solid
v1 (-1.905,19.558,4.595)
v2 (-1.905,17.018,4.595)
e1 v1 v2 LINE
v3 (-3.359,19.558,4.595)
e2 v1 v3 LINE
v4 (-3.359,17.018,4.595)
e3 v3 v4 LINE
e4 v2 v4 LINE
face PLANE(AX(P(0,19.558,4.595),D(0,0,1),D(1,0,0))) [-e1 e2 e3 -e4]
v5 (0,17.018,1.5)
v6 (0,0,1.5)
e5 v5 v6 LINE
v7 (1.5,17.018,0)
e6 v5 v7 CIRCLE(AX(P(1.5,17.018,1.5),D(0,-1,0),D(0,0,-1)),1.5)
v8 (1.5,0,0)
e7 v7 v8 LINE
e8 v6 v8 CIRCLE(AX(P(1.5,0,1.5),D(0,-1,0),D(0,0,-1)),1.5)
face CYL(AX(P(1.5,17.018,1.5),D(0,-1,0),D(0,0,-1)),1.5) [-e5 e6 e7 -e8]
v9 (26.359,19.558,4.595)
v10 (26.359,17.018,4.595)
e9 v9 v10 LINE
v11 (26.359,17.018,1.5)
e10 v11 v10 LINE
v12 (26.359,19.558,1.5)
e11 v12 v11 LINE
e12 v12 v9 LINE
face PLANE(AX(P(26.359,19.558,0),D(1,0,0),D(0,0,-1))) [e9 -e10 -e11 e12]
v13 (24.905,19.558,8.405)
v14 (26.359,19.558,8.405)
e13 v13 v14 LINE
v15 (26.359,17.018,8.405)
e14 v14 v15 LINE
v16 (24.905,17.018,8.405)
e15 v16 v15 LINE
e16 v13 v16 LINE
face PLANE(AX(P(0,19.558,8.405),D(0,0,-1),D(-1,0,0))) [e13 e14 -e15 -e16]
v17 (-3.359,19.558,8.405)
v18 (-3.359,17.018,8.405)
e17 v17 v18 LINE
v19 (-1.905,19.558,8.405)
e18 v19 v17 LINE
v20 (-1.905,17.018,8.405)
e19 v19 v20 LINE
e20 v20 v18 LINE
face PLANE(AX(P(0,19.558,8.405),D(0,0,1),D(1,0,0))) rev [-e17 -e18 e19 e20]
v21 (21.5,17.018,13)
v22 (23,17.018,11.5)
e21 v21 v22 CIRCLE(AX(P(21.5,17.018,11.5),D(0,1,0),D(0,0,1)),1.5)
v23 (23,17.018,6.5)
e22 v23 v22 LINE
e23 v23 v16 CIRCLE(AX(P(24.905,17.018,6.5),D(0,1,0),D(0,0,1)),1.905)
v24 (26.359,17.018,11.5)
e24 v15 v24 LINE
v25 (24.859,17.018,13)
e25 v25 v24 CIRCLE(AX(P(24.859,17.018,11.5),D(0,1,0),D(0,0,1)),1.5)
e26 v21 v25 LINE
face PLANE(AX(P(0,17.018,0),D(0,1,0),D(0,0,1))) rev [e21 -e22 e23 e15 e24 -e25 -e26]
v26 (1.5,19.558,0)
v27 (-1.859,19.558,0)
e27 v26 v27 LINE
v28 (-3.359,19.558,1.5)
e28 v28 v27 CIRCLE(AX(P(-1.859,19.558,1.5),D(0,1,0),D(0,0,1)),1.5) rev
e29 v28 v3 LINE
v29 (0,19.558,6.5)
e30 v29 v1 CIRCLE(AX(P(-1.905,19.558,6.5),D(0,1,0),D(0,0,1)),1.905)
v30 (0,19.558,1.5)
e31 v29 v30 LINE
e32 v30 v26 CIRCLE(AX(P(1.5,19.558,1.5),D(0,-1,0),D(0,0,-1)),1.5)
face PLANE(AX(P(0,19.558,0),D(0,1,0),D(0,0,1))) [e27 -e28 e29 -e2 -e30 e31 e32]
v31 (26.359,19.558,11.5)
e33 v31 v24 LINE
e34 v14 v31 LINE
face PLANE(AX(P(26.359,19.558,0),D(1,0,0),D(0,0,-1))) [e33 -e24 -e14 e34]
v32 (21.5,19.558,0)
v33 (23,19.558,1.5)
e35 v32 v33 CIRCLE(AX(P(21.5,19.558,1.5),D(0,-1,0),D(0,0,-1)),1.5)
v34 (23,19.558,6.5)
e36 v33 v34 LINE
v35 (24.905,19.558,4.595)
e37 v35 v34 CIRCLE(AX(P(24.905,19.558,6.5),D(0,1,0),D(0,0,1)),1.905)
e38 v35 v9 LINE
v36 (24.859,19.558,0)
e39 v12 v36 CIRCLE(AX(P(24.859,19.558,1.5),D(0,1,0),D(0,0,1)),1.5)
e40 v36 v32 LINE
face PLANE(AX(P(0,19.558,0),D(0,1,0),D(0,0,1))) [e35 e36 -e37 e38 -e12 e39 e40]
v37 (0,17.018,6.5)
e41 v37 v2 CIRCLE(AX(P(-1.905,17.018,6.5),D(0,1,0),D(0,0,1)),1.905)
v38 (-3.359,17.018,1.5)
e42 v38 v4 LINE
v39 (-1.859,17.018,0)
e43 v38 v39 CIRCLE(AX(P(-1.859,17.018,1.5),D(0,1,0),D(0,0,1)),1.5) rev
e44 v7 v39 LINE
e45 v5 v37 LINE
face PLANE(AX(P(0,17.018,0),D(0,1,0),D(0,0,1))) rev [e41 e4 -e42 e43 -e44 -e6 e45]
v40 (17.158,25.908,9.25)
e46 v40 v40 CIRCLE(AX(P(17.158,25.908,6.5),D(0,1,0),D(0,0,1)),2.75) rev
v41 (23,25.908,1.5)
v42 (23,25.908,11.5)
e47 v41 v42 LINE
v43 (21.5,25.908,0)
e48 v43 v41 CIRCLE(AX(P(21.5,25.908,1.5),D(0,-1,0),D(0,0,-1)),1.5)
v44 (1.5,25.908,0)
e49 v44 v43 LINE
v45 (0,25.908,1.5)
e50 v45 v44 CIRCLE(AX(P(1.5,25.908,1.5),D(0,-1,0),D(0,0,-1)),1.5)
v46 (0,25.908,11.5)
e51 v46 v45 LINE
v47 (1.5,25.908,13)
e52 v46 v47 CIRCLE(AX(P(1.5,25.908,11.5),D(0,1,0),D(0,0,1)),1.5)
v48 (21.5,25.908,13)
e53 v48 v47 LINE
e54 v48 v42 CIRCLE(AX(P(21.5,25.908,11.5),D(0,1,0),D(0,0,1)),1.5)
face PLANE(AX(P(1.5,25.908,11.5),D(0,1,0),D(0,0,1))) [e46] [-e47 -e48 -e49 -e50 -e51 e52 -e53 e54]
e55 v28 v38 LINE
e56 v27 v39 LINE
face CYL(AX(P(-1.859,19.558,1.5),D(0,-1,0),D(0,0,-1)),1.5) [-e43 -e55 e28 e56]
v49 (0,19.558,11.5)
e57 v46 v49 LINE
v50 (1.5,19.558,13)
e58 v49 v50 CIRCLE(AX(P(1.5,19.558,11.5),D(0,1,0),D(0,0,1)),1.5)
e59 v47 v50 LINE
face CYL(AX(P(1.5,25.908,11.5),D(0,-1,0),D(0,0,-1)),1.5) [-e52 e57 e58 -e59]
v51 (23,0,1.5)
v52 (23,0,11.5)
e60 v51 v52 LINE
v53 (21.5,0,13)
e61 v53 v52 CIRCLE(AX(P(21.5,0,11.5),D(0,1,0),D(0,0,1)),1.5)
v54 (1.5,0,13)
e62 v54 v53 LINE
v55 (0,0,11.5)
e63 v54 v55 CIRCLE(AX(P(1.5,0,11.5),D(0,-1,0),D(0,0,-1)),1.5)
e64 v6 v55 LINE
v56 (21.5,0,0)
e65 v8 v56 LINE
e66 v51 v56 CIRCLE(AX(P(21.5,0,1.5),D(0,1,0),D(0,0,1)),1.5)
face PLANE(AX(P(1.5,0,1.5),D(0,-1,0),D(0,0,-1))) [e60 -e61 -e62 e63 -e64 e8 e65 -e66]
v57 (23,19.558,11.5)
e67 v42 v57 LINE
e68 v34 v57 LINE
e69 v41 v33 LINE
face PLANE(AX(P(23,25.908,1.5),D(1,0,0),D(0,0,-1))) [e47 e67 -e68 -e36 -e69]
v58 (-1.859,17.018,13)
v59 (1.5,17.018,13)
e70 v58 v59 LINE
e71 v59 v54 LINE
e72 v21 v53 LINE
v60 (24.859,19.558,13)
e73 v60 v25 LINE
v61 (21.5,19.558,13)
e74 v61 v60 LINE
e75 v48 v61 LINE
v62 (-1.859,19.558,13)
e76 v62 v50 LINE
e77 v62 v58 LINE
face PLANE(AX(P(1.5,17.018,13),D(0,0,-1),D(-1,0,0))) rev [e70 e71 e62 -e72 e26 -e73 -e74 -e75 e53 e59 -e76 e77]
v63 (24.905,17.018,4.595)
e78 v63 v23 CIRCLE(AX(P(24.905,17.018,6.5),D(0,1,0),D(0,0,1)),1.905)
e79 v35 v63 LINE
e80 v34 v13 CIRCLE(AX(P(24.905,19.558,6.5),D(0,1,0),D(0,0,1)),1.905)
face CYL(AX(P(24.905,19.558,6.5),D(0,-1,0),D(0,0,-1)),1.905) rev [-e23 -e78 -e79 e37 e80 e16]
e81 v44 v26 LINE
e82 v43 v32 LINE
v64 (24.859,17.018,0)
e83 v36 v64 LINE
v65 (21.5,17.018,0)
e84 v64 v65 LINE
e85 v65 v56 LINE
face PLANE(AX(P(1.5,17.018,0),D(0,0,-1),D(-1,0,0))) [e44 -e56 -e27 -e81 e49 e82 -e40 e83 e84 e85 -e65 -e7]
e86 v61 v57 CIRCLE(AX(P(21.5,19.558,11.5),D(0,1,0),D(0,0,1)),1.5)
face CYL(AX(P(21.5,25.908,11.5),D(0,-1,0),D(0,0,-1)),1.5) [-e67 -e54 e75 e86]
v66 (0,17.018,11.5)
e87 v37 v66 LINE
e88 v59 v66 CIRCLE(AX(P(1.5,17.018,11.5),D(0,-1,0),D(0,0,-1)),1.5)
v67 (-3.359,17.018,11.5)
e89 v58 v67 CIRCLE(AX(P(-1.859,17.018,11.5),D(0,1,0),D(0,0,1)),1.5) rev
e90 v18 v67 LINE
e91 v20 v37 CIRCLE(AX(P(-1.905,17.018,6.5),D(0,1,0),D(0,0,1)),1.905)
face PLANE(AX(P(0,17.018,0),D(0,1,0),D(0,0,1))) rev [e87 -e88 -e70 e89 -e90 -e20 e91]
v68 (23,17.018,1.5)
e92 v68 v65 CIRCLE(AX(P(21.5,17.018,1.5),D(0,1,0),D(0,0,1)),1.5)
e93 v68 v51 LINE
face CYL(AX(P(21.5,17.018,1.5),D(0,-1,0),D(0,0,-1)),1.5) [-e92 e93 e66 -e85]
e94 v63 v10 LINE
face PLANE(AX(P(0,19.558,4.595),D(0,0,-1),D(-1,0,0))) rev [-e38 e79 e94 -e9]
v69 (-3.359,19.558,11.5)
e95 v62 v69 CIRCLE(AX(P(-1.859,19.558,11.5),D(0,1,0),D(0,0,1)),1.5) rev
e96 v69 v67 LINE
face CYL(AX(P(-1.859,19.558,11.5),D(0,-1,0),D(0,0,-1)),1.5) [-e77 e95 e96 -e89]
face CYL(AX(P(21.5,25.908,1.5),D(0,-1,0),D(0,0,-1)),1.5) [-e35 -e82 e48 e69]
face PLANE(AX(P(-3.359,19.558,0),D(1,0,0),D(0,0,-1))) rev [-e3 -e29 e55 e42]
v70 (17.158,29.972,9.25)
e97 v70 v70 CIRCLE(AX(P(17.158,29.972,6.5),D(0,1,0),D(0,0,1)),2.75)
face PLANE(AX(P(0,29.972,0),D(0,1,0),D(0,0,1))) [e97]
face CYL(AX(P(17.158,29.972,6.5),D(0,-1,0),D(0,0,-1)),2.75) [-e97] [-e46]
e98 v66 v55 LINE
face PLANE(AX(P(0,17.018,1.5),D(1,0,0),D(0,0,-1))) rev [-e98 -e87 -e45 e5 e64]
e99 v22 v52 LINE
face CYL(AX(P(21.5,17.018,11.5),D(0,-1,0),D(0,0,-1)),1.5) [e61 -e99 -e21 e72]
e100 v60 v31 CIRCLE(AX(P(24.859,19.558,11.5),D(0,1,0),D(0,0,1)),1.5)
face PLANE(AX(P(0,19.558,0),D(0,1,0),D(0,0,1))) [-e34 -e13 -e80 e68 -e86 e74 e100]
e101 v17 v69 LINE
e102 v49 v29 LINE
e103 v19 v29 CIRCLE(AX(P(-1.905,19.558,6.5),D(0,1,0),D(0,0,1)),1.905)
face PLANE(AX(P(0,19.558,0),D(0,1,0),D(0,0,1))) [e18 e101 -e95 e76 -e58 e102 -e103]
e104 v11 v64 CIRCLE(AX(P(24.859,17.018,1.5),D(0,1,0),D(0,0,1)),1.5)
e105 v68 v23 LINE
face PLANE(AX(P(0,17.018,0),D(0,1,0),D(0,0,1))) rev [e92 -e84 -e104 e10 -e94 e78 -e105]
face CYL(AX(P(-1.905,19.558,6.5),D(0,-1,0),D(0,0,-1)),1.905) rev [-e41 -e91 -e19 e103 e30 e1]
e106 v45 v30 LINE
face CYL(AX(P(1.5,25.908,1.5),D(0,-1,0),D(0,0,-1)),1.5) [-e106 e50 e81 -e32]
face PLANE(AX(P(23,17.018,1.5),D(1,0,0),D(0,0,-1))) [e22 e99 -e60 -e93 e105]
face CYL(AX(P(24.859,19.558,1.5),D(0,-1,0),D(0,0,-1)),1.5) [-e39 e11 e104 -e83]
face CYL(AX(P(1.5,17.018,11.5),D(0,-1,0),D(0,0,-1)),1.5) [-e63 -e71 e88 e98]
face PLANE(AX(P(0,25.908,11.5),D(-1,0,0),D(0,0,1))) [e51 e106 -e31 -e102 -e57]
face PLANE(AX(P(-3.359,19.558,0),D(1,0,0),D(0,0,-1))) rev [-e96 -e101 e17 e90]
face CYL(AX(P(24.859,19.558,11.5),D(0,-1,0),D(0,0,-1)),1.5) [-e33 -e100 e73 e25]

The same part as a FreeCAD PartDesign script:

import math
import FreeCAD as App
import Part
import Sketcher

V = App.Vector
Q = App.Units.Quantity

doc = App.newDocument("Part")
body = doc.addObject("PartDesign::Body", "Body")

# Sketch on XZ plane
sketch1 = body.newObject("Sketcher::SketchObject", "Sketch")
sketch1.AttachmentSupport = (doc.getObject("XZ_Plane"), [""])
sketch1.MapMode = "FlatFace"
sketch1.addGeometry([
    Part.LineSegment(V(21.5, 0, 0), V(1.5, 0, 0)),  # 0
    Part.ArcOfCircle(Part.Circle(V(1.5, 1.5, 0), V(0, 0, 1), 1.5), math.radians(180), math.radians(270)),  # 1
    Part.LineSegment(V(0, 1.5, 0), V(0, 11.5, 0)),  # 2
    Part.ArcOfCircle(Part.Circle(V(1.5, 11.5, 0), V(0, 0, 1), 1.5), math.radians(90), math.radians(180)),  # 3
    Part.LineSegment(V(1.5, 13, 0), V(21.5, 13, 0)),  # 4
    Part.ArcOfCircle(Part.Circle(V(21.5, 11.5, 0), V(0, 0, 1), 1.5), math.radians(0), math.radians(90)),  # 5
    Part.LineSegment(V(23, 11.5, 0), V(23, 1.5, 0)),  # 6
    Part.ArcOfCircle(Part.Circle(V(21.5, 1.5, 0), V(0, 0, 1), 1.5), math.radians(-90), math.radians(0)),  # 7
], False)
sketch1.addConstraint([
    Sketcher.Constraint("Tangent", 0, 2, 1, 2),
    Sketcher.Constraint("Tangent", 1, 1, 2, 1),
    Sketcher.Constraint("Tangent", 2, 2, 3, 2),
    Sketcher.Constraint("Tangent", 3, 1, 4, 1),
    Sketcher.Constraint("Tangent", 4, 2, 5, 2),
    Sketcher.Constraint("Tangent", 5, 1, 6, 1),
    Sketcher.Constraint("Tangent", 6, 2, 7, 2),
    Sketcher.Constraint("Tangent", 7, 1, 0, 1),
    Sketcher.Constraint("Horizontal", 0),
    Sketcher.Constraint("Vertical", 2),
    Sketcher.Constraint("Horizontal", 4),
    Sketcher.Constraint("Vertical", 6),
    Sketcher.Constraint("Equal", 1, 3),
    Sketcher.Constraint("Equal", 3, 5),
    Sketcher.Constraint("Equal", 5, 7),
    Sketcher.Constraint("PointOnObject", 0, 2, -1),
    Sketcher.Constraint("PointOnObject", 1, 1, -2),
    Sketcher.Constraint("Radius", 1, Q("1.5 mm")),
    Sketcher.Constraint("DistanceX", 0, 2, 0, 1, Q("20 mm")),
    Sketcher.Constraint("DistanceY", 2, 1, 2, 2, Q("10 mm")),
])
pad1 = body.newObject("PartDesign::Pad", "Pad")
pad1.Profile = sketch1
pad1.Length = Q("0.67 in")
pad1.Reversed = True

# Sketch on XZ plane
sketch2 = body.newObject("Sketcher::SketchObject", "Sketch001")
sketch2.AttachmentSupport = (doc.getObject("XZ_Plane"), [""])
sketch2.MapMode = "FlatFace"
sketch2.AttachmentOffset = App.Placement(V(0, 0, -0.67 * 25.4), App.Rotation())
sketch2.addGeometry([
    Part.ArcOfCircle(Part.Circle(V(-1.9, 1.5, 0), V(0, 0, 1), 1.5), math.radians(180), math.radians(270)),  # 0
    Part.LineSegment(V(-3.4, 1.5, 0), V(-3.4, 4.6, 0)),  # 1
    Part.LineSegment(V(-3.4, 4.6, 0), V(-1.9, 4.6, 0)),  # 2
    Part.ArcOfCircle(Part.Circle(V(-1.9, 6.5, 0), V(0, 0, 1), 1.9), math.radians(-90), math.radians(0)),  # 3
    Part.ArcOfCircle(Part.Circle(V(-1.9, 6.5, 0), V(0, 0, 1), 1.9), math.radians(0), math.radians(90)),  # 4
    Part.LineSegment(V(-1.9, 8.4, 0), V(-3.4, 8.4, 0)),  # 5
    Part.LineSegment(V(-3.4, 8.4, 0), V(-3.4, 11.5, 0)),  # 6
    Part.ArcOfCircle(Part.Circle(V(-1.9, 11.5, 0), V(0, 0, 1), 1.5), math.radians(90), math.radians(180)),  # 7
    Part.LineSegment(V(-1.9, 13, 0), V(24.9, 13, 0)),  # 8
    Part.ArcOfCircle(Part.Circle(V(24.9, 11.5, 0), V(0, 0, 1), 1.5), math.radians(0), math.radians(90)),  # 9
    Part.LineSegment(V(26.4, 11.5, 0), V(26.4, 8.4, 0)),  # 10
    Part.LineSegment(V(26.4, 8.4, 0), V(24.9, 8.4, 0)),  # 11
    Part.ArcOfCircle(Part.Circle(V(24.9, 6.5, 0), V(0, 0, 1), 1.9), math.radians(90), math.radians(180)),  # 12
    Part.ArcOfCircle(Part.Circle(V(24.9, 6.5, 0), V(0, 0, 1), 1.9), math.radians(-180), math.radians(-90)),  # 13
    Part.LineSegment(V(24.9, 4.6, 0), V(26.4, 4.6, 0)),  # 14
    Part.LineSegment(V(26.4, 4.6, 0), V(26.4, 1.5, 0)),  # 15
    Part.ArcOfCircle(Part.Circle(V(24.9, 1.5, 0), V(0, 0, 1), 1.5), math.radians(-90), math.radians(0)),  # 16
    Part.LineSegment(V(24.9, 0, 0), V(-1.9, 0, 0)),  # 17
], False)
sketch2.addConstraint([
    Sketcher.Constraint("Tangent", 0, 1, 1, 1),
    Sketcher.Constraint("Coincident", 1, 2, 2, 1),
    Sketcher.Constraint("Tangent", 2, 2, 3, 1),
    Sketcher.Constraint("Tangent", 3, 2, 4, 1),
    Sketcher.Constraint("Tangent", 4, 2, 5, 1),
    Sketcher.Constraint("Coincident", 5, 2, 6, 1),
    Sketcher.Constraint("Tangent", 6, 2, 7, 2),
    Sketcher.Constraint("Tangent", 7, 1, 8, 1),
    Sketcher.Constraint("Tangent", 8, 2, 9, 2),
    Sketcher.Constraint("Tangent", 9, 1, 10, 1),
    Sketcher.Constraint("Coincident", 10, 2, 11, 1),
    Sketcher.Constraint("Tangent", 11, 2, 12, 1),
    Sketcher.Constraint("Tangent", 12, 2, 13, 1),
    Sketcher.Constraint("Tangent", 13, 2, 14, 1),
    Sketcher.Constraint("Coincident", 14, 2, 15, 1),
    Sketcher.Constraint("Tangent", 15, 2, 16, 2),
    Sketcher.Constraint("Tangent", 16, 1, 17, 1),
    Sketcher.Constraint("Tangent", 17, 2, 0, 2),
    Sketcher.Constraint("Vertical", 1),
    Sketcher.Constraint("Horizontal", 2),
    Sketcher.Constraint("Horizontal", 5),
    Sketcher.Constraint("Vertical", 6),
    Sketcher.Constraint("Horizontal", 8),
    Sketcher.Constraint("Vertical", 10),
    Sketcher.Constraint("Horizontal", 11),
    Sketcher.Constraint("Horizontal", 14),
    Sketcher.Constraint("Vertical", 15),
    Sketcher.Constraint("Horizontal", 17),
    Sketcher.Constraint("Equal", 3, 4),
    Sketcher.Constraint("Equal", 0, 7),
    Sketcher.Constraint("Equal", 7, 9),
    Sketcher.Constraint("Equal", 4, 12),
    Sketcher.Constraint("Equal", 12, 13),
    Sketcher.Constraint("Equal", 9, 16),
    Sketcher.Constraint("PointOnObject", 3, 2, -2),
    Sketcher.Constraint("PointOnObject", 16, 1, -1),
    Sketcher.Constraint("Horizontal", 4, 3, 12, 3),
    Sketcher.Constraint("Horizontal", 13, 3, 3, 2),
    Sketcher.Constraint("Horizontal", 3, 2, 12, 2),
    Sketcher.Constraint("Vertical", 0, 3, 7, 3),
    Sketcher.Constraint("Vertical", 9, 3, 16, 3),
    Sketcher.Constraint("Equal", 5, 11),
    Sketcher.Constraint("Equal", 1, 6),
    Sketcher.Constraint("Radius", 3, Q("0.075 in")),
    Sketcher.Constraint("Radius", 0, Q("1.5 mm")),
    Sketcher.Constraint("DistanceX", 2, 1, 2, 2, Q("1.454 mm")),
    Sketcher.Constraint("DistanceX", 8, 1, 8, 2, Q("26.718 mm")),
    Sketcher.Constraint("DistanceY", 1, 1, 1, 2, Q("3.095 mm")),
])
pad2 = body.newObject("PartDesign::Pad", "Pad001")
pad2.Profile = sketch2
pad2.Length = Q("0.1 in")
pad2.Reversed = True

# Sketch on XZ plane
sketch3 = body.newObject("Sketcher::SketchObject", "Sketch002")
sketch3.AttachmentSupport = (doc.getObject("XZ_Plane"), [""])
sketch3.MapMode = "FlatFace"
sketch3.AttachmentOffset = App.Placement(V(0, 0, -0.77 * 25.4), App.Rotation())
sketch3.addGeometry([
    Part.LineSegment(V(21.5, 0, 0), V(1.5, 0, 0)),  # 0
    Part.ArcOfCircle(Part.Circle(V(1.5, 1.5, 0), V(0, 0, 1), 1.5), math.radians(180), math.radians(270)),  # 1
    Part.LineSegment(V(0, 1.5, 0), V(0, 11.5, 0)),  # 2
    Part.ArcOfCircle(Part.Circle(V(1.5, 11.5, 0), V(0, 0, 1), 1.5), math.radians(90), math.radians(180)),  # 3
    Part.LineSegment(V(1.5, 13, 0), V(21.5, 13, 0)),  # 4
    Part.ArcOfCircle(Part.Circle(V(21.5, 11.5, 0), V(0, 0, 1), 1.5), math.radians(0), math.radians(90)),  # 5
    Part.LineSegment(V(23, 11.5, 0), V(23, 1.5, 0)),  # 6
    Part.ArcOfCircle(Part.Circle(V(21.5, 1.5, 0), V(0, 0, 1), 1.5), math.radians(-90), math.radians(0)),  # 7
], False)
sketch3.addConstraint([
    Sketcher.Constraint("Tangent", 0, 2, 1, 2),
    Sketcher.Constraint("Tangent", 1, 1, 2, 1),
    Sketcher.Constraint("Tangent", 2, 2, 3, 2),
    Sketcher.Constraint("Tangent", 3, 1, 4, 1),
    Sketcher.Constraint("Tangent", 4, 2, 5, 2),
    Sketcher.Constraint("Tangent", 5, 1, 6, 1),
    Sketcher.Constraint("Tangent", 6, 2, 7, 2),
    Sketcher.Constraint("Tangent", 7, 1, 0, 1),
    Sketcher.Constraint("Horizontal", 0),
    Sketcher.Constraint("Vertical", 2),
    Sketcher.Constraint("Horizontal", 4),
    Sketcher.Constraint("Vertical", 6),
    Sketcher.Constraint("Equal", 1, 3),
    Sketcher.Constraint("Equal", 3, 5),
    Sketcher.Constraint("Equal", 5, 7),
    Sketcher.Constraint("PointOnObject", 0, 2, -1),
    Sketcher.Constraint("PointOnObject", 1, 1, -2),
    Sketcher.Constraint("Radius", 1, Q("1.5 mm")),
    Sketcher.Constraint("DistanceX", 0, 2, 0, 1, Q("20 mm")),
    Sketcher.Constraint("DistanceY", 2, 1, 2, 2, Q("10 mm")),
])
pad3 = body.newObject("PartDesign::Pad", "Pad002")
pad3.Profile = sketch3
pad3.Length = Q("0.25 in")
pad3.Reversed = True

# Sketch on XZ plane
sketch4 = body.newObject("Sketcher::SketchObject", "Sketch003")
sketch4.AttachmentSupport = (doc.getObject("XZ_Plane"), [""])
sketch4.MapMode = "FlatFace"
sketch4.AttachmentOffset = App.Placement(V(0, 0, -0.77 * 25.4), App.Rotation())
sketch4.addGeometry(Part.Circle(V(17.2, 6.5, 0), V(0, 0, 1), 2.8), False)
sketch4.addConstraint([
    Sketcher.Constraint("Diameter", 0, Q("5.5 mm")),
    Sketcher.Constraint("DistanceX", -1, 1, 0, 3, Q("17.158 mm")),
    Sketcher.Constraint("DistanceY", -1, 1, 0, 3, Q("6.5 mm")),
])
pad4 = body.newObject("PartDesign::Pad", "Pad003")
pad4.Profile = sketch4
pad4.Length = Q("0.41 in")
pad4.Reversed = True

doc.recompute()
